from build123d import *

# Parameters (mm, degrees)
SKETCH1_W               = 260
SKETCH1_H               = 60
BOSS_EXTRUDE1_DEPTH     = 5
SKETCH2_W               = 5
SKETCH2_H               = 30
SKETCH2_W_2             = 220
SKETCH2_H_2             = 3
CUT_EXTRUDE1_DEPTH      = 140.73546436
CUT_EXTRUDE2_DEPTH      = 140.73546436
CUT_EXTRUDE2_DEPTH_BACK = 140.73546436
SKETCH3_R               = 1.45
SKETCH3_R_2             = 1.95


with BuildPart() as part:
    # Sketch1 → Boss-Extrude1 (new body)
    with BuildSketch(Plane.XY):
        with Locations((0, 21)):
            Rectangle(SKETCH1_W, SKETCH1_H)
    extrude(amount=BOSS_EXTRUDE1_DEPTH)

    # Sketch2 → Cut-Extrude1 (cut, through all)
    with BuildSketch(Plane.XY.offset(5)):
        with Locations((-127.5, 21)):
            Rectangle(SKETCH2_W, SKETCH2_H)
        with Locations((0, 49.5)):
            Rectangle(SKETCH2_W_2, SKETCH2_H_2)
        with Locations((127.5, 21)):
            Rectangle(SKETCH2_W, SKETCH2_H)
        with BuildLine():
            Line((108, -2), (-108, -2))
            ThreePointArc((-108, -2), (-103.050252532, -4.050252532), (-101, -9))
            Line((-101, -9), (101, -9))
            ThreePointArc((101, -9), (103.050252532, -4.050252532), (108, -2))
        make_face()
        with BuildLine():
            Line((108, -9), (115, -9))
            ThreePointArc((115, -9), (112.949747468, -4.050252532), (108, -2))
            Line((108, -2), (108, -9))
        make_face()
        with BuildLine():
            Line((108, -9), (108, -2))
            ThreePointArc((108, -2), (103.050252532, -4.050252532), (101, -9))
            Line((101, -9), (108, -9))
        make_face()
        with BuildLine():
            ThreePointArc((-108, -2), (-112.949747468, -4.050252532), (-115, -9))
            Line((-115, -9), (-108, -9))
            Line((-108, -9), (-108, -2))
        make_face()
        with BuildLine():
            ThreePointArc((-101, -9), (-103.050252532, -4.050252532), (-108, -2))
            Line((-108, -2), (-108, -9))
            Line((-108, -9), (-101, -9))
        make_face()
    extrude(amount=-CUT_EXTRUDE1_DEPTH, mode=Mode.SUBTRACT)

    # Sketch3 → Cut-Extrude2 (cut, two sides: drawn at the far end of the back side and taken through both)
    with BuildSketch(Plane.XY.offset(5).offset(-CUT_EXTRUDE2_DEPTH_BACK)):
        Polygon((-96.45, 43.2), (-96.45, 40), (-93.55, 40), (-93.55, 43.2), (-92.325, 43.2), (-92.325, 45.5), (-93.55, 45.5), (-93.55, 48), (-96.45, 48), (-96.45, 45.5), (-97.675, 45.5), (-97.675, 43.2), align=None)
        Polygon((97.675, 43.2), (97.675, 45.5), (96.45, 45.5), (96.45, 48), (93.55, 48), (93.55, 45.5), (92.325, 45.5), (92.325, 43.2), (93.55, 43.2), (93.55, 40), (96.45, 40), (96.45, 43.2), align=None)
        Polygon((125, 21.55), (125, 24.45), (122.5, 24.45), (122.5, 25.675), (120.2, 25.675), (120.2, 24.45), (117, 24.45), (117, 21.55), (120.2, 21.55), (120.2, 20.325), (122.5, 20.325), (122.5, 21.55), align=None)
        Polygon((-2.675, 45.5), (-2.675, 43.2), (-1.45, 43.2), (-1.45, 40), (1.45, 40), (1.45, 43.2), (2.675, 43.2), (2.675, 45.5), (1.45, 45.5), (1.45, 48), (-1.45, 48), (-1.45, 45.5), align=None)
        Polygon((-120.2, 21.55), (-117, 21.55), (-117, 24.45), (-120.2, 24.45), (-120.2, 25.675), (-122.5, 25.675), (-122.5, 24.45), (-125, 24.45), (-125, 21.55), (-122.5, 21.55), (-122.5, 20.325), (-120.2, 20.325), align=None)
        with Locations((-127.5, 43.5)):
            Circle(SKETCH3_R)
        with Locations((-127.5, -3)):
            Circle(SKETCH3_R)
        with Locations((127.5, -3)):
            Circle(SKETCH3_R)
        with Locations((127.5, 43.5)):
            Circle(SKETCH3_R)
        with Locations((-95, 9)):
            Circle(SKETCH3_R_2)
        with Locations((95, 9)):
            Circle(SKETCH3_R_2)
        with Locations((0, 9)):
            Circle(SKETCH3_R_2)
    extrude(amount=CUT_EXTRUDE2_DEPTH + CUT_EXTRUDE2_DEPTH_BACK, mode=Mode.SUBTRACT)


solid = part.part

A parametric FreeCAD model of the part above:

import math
import FreeCAD as App
import Part
import Sketcher

V = App.Vector
Q = App.Units.Quantity


def add_polygon(sketch, points):
    """Adds a closed chain of lines whose ends are joined by coincident constraints."""
    first, n = sketch.GeometryCount, len(points)
    for a, b in zip(points, points[1:] + points[:1]):
        sketch.addGeometry(Part.LineSegment(App.Vector(*a, 0), App.Vector(*b, 0)), False)
    for i in range(n):
        sketch.addConstraint(Sketcher.Constraint("Coincident", first + i, 2, first + (i + 1) % n, 1))

doc = App.newDocument("Part")
params = doc.addObject("Spreadsheet::Sheet", "Params")
for row, (alias, value) in enumerate([
    ("sketch1_width", "260 mm"),
    ("sketch1_height", "60 mm"),
    ("pad1_length", "5 mm"),
    ("sketch2_radius", "7 mm"),
    ("sketch2_width", "5 mm"),
    ("sketch2_width2", "220 mm"),
    ("sketch2_width3", "216 mm"),
    ("sketch2_height", "30 mm"),
    ("sketch3_diameter", "2.9 mm"),
    ("sketch3_diameter2", "3.9 mm"),
    ("sketch3_width", "2.9 mm"),
    ("sketch3_width2", "2.5 mm"),
    ("sketch3_width3", "2.3 mm"),
], start=1):
    params.set(f"A{row}", alias)
    params.set(f"B{row}", "=" + value)
    params.setAlias(f"B{row}", alias)

body = doc.addObject("PartDesign::Body", "Body")

# Sketch on XY plane
sketch1 = body.newObject("Sketcher::SketchObject", "Sketch")
sketch1.AttachmentSupport = (doc.getObject("XY_Plane"), [""])
sketch1.MapMode = "FlatFace"
add_polygon(sketch1, [(-130, 51), (-130, -9), (130, -9), (130, 51)])  # lines 0-3
sketch1.addConstraint([
    Sketcher.Constraint("Vertical", 0),
    Sketcher.Constraint("Horizontal", 1),
    Sketcher.Constraint("Vertical", 2),
    Sketcher.Constraint("Horizontal", 3),
    Sketcher.Constraint("DistanceX", 1, 1, 1, 2, Q("260 mm")),
    Sketcher.Constraint("DistanceY", 0, 2, 0, 1, Q("60 mm")),
    Sketcher.Constraint("DistanceX", 0, 2, -1, 1, Q("130 mm")),
    Sketcher.Constraint("DistanceY", 0, 2, -1, 1, Q("9 mm")),
])
sketch1.setExpression("Constraints[8]", "Params.sketch1_width")
sketch1.setExpression("Constraints[9]", "Params.sketch1_height")
pad1 = body.newObject("PartDesign::Pad", "Pad")
pad1.Profile = sketch1
pad1.setExpression("Length", "Params.pad1_length")

# Sketch on XY plane
sketch2 = body.newObject("Sketcher::SketchObject", "Sketch001")
sketch2.AttachmentSupport = (doc.getObject("XY_Plane"), [""])
sketch2.MapMode = "FlatFace"
sketch2.AttachmentOffset = App.Placement(V(0, 0, 5), App.Rotation())
add_polygon(sketch2, [(-130, 36), (-130, 6), (-125, 6), (-125, 36)])  # lines 0-3
add_polygon(sketch2, [(-110, 51), (-110, 48), (110, 48), (110, 51)])  # lines 4-7
add_polygon(sketch2, [(125, 36), (125, 6), (130, 6), (130, 36)])  # lines 8-11
sketch2.addGeometry(Part.ArcOfCircle(Part.Circle(V(108, -9, 0), V(0, 0, 1), 7), math.radians(0), math.radians(90)), False)  # 12
sketch2.addGeometry(Part.LineSegment(V(108, -2, 0), V(-108, -2, 0)), False)  # 13
sketch2.addGeometry(Part.ArcOfCircle(Part.Circle(V(-108, -9, 0), V(0, 0, 1), 7), math.radians(90), math.radians(180)), False)  # 14
sketch2.addGeometry(Part.LineSegment(V(-115, -9, 0), V(115, -9, 0)), False)  # 15
sketch2.addConstraint([
    Sketcher.Constraint("Tangent", 12, 2, 13, 1),
    Sketcher.Constraint("Tangent", 13, 2, 14, 1),
    Sketcher.Constraint("Coincident", 14, 2, 15, 1),
    Sketcher.Constraint("Coincident", 15, 2, 12, 1),
    Sketcher.Constraint("Vertical", 0),
    Sketcher.Constraint("Horizontal", 1),
    Sketcher.Constraint("Vertical", 2),
    Sketcher.Constraint("Horizontal", 3),
    Sketcher.Constraint("Vertical", 4),
    Sketcher.Constraint("Horizontal", 5),
    Sketcher.Constraint("Vertical", 6),
    Sketcher.Constraint("Horizontal", 7),
    Sketcher.Constraint("Vertical", 8),
    Sketcher.Constraint("Horizontal", 9),
    Sketcher.Constraint("Vertical", 10),
    Sketcher.Constraint("Horizontal", 11),
    Sketcher.Constraint("Horizontal", 13),
    Sketcher.Constraint("Horizontal", 15),
    Sketcher.Constraint("Equal", 12, 14),
    Sketcher.Constraint("Symmetric", 1, 2, 8, 2, -2),
    Sketcher.Constraint("Symmetric", 3, 2, 10, 2, -2),
    Sketcher.Constraint("Horizontal", 12, 3, 14, 2),
    Sketcher.Constraint("Radius", 12, Q("7 mm")),
    Sketcher.Constraint("DistanceX", 1, 1, 1, 2, Q("5 mm")),
    Sketcher.Constraint("DistanceX", 5, 1, 5, 2, Q("220 mm")),
    Sketcher.Constraint("DistanceX", 13, 2, 13, 1, Q("216 mm")),
    Sketcher.Constraint("DistanceY", 0, 2, 0, 1, Q("30 mm")),
    Sketcher.Constraint("DistanceY", 4, 2, 4, 1, Q("3 mm")),
    Sketcher.Constraint("DistanceX", -1, 1, 12, 3, Q("108 mm")),
    Sketcher.Constraint("DistanceY", 12, 3, -1, 1, Q("9 mm")),
    Sketcher.Constraint("DistanceX", 0, 2, -1, 1, Q("130 mm")),
    Sketcher.Constraint("DistanceY", -1, 1, 0, 2, Q("6 mm")),
    Sketcher.Constraint("DistanceX", 4, 2, -1, 1, Q("110 mm")),
    Sketcher.Constraint("DistanceY", -1, 1, 4, 2, Q("48 mm")),
])
sketch2.setExpression("Constraints[34]", "Params.sketch2_radius")
sketch2.setExpression("Constraints[35]", "Params.sketch2_width")
sketch2.setExpression("Constraints[36]", "Params.sketch2_width2")
sketch2.setExpression("Constraints[37]", "Params.sketch2_width3")
sketch2.setExpression("Constraints[38]", "Params.sketch2_height")
pocket1 = body.newObject("PartDesign::Pocket", "Pocket")
pocket1.Profile = sketch2
pocket1.Type = "ThroughAll"

# Sketch on XY plane
sketch3 = body.newObject("Sketcher::SketchObject", "Sketch002")
sketch3.AttachmentSupport = (doc.getObject("XY_Plane"), [""])
sketch3.MapMode = "FlatFace"
sketch3.AttachmentOffset = App.Placement(V(0, 0, 5), App.Rotation())
add_polygon(sketch3, [(-96.45, 43.2), (-96.45, 40), (-93.55, 40), (-93.55, 43.2), (-92.325, 43.2), (-92.325, 45.5), (-93.55, 45.5), (-93.55, 48), (-96.45, 48), (-96.45, 45.5), (-97.675, 45.5), (-97.675, 43.2)])  # lines 0-11
add_polygon(sketch3, [(97.675, 43.2), (97.675, 45.5), (96.45, 45.5), (96.45, 48), (93.55, 48), (93.55, 45.5), (92.325, 45.5), (92.325, 43.2), (93.55, 43.2), (93.55, 40), (96.45, 40), (96.45, 43.2)])  # lines 12-23
add_polygon(sketch3, [(125, 21.55), (125, 24.45), (122.5, 24.45), (122.5, 25.675), (120.2, 25.675), (120.2, 24.45), (117, 24.45), (117, 21.55), (120.2, 21.55), (120.2, 20.325), (122.5, 20.325), (122.5, 21.55)])  # lines 24-35
add_polygon(sketch3, [(-2.675, 45.5), (-2.675, 43.2), (-1.45, 43.2), (-1.45, 40), (1.45, 40), (1.45, 43.2), (2.675, 43.2), (2.675, 45.5), (1.45, 45.5), (1.45, 48), (-1.45, 48), (-1.45, 45.5)])  # lines 36-47
add_polygon(sketch3, [(-120.2, 21.55), (-117, 21.55), (-117, 24.45), (-120.2, 24.45), (-120.2, 25.675), (-122.5, 25.675), (-122.5, 24.45), (-125, 24.45), (-125, 21.55), (-122.5, 21.55), (-122.5, 20.325), (-120.2, 20.325)])  # lines 48-59
sketch3.addGeometry(Part.Circle(V(-127.5, 43.5, 0), V(0, 0, 1), 1.45), False)  # 60
sketch3.addGeometry(Part.Circle(V(-127.5, -3, 0), V(0, 0, 1), 1.45), False)  # 61
sketch3.addGeometry(Part.Circle(V(127.5, -3, 0), V(0, 0, 1), 1.45), False)  # 62
sketch3.addGeometry(Part.Circle(V(127.5, 43.5, 0), V(0, 0, 1), 1.45), False)  # 63
sketch3.addGeometry(Part.Circle(V(-95, 9, 0), V(0, 0, 1), 1.95), False)  # 64
sketch3.addGeometry(Part.Circle(V(95, 9, 0), V(0, 0, 1), 1.95), False)  # 65
sketch3.addGeometry(Part.Circle(V(0, 9, 0), V(0, 0, 1), 1.95), False)  # 66
sketch3.addConstraint([
    Sketcher.Constraint("Vertical", 0),
    Sketcher.Constraint("Horizontal", 1),
    Sketcher.Constraint("Vertical", 2),
    Sketcher.Constraint("Horizontal", 3),
    Sketcher.Constraint("Vertical", 4),
    Sketcher.Constraint("Horizontal", 5),
    Sketcher.Constraint("Vertical", 6),
    Sketcher.Constraint("Horizontal", 7),
    Sketcher.Constraint("Vertical", 8),
    Sketcher.Constraint("Horizontal", 9),
    Sketcher.Constraint("Vertical", 10),
    Sketcher.Constraint("Horizontal", 11),
    Sketcher.Constraint("Vertical", 12),
    Sketcher.Constraint("Horizontal", 13),
    Sketcher.Constraint("Vertical", 14),
    Sketcher.Constraint("Horizontal", 15),
    Sketcher.Constraint("Vertical", 16),
    Sketcher.Constraint("Horizontal", 17),
    Sketcher.Constraint("Vertical", 18),
    Sketcher.Constraint("Horizontal", 19),
    Sketcher.Constraint("Vertical", 20),
    Sketcher.Constraint("Horizontal", 21),
    Sketcher.Constraint("Vertical", 22),
    Sketcher.Constraint("Horizontal", 23),
    Sketcher.Constraint("Vertical", 24),
    Sketcher.Constraint("Horizontal", 25),
    Sketcher.Constraint("Vertical", 26),
    Sketcher.Constraint("Horizontal", 27),
    Sketcher.Constraint("Vertical", 28),
    Sketcher.Constraint("Horizontal", 29),
    Sketcher.Constraint("Vertical", 30),
    Sketcher.Constraint("Horizontal", 31),
    Sketcher.Constraint("Vertical", 32),
    Sketcher.Constraint("Horizontal", 33),
    Sketcher.Constraint("Vertical", 34),
    Sketcher.Constraint("Horizontal", 35),
    Sketcher.Constraint("Vertical", 36),
    Sketcher.Constraint("Horizontal", 37),
    Sketcher.Constraint("Vertical", 38),
    Sketcher.Constraint("Horizontal", 39),
    Sketcher.Constraint("Vertical", 40),
    Sketcher.Constraint("Horizontal", 41),
    Sketcher.Constraint("Vertical", 42),
    Sketcher.Constraint("Horizontal", 43),
    Sketcher.Constraint("Vertical", 44),
    Sketcher.Constraint("Horizontal", 45),
    Sketcher.Constraint("Vertical", 46),
    Sketcher.Constraint("Horizontal", 47),
    Sketcher.Constraint("Horizontal", 48),
    Sketcher.Constraint("Vertical", 49),
    Sketcher.Constraint("Horizontal", 50),
    Sketcher.Constraint("Vertical", 51),
    Sketcher.Constraint("Horizontal", 52),
    Sketcher.Constraint("Vertical", 53),
    Sketcher.Constraint("Horizontal", 54),
    Sketcher.Constraint("Vertical", 55),
    Sketcher.Constraint("Horizontal", 56),
    Sketcher.Constraint("Vertical", 57),
    Sketcher.Constraint("Horizontal", 58),
    Sketcher.Constraint("Vertical", 59),
    Sketcher.Constraint("Equal", 60, 61),
    Sketcher.Constraint("Equal", 61, 62),
    Sketcher.Constraint("Equal", 62, 63),
    Sketcher.Constraint("Equal", 64, 65),
    Sketcher.Constraint("Equal", 65, 66),
    Sketcher.Constraint("Symmetric", 61, 3, 62, 3, -2),
    Sketcher.Constraint("Symmetric", 60, 3, 63, 3, -2),
    Sketcher.Constraint("Symmetric", 64, 3, 65, 3, -2),
    Sketcher.Constraint("Symmetric", 9, 2, 12, 2, -2),
    Sketcher.Constraint("Symmetric", 7, 2, 14, 2, -2),
    Sketcher.Constraint("Symmetric", 5, 2, 16, 2, -2),
    Sketcher.Constraint("Symmetric", 3, 2, 18, 2, -2),
    Sketcher.Constraint("Symmetric", 1, 2, 20, 2, -2),
    Sketcher.Constraint("Symmetric", 11, 2, 22, 2, -2),
    Sketcher.Constraint("Symmetric", 37, 2, 40, 2, -2),
    Sketcher.Constraint("Symmetric", 43, 2, 46, 2, -2),
    Sketcher.Constraint("Symmetric", 30, 2, 48, 2, -2),
    Sketcher.Constraint("Symmetric", 28, 2, 50, 2, -2),
    Sketcher.Constraint("Symmetric", 26, 2, 52, 2, -2),
    Sketcher.Constraint("Symmetric", 24, 2, 54, 2, -2),
    Sketcher.Constraint("Symmetric", 34, 2, 56, 2, -2),
    Sketcher.Constraint("Symmetric", 32, 2, 58, 2, -2),
    Sketcher.Constraint("PointOnObject", 66, 3, -2),
    Sketcher.Constraint("Horizontal", 65, 3, 66, 3),
    Sketcher.Constraint("Horizontal", 5, 2, 8, 2),
    Sketcher.Constraint("Horizontal", 3, 2, 10, 2),
    Sketcher.Constraint("Horizontal", 25, 2, 28, 2),
    Sketcher.Constraint("Horizontal", 31, 2, 34, 2),
    Sketcher.Constraint("Horizontal", 23, 2, 36, 2),
    Sketcher.Constraint("Horizontal", 21, 2, 38, 2),
    Sketcher.Constraint("Horizontal", 17, 2, 42, 2),
    Sketcher.Constraint("Horizontal", 15, 2, 44, 2),
    Sketcher.Constraint("Vertical", 60, 3, 61, 3),
    Sketcher.Constraint("Vertical", 2, 2, 5, 2),
    Sketcher.Constraint("Vertical", 0, 2, 7, 2),
    Sketcher.Constraint("Vertical", 28, 2, 31, 2),
    Sketcher.Constraint("Vertical", 26, 2, 33, 2),
    Sketcher.Constraint("Vertical", 40, 2, 43, 2),
    Sketcher.Constraint("Equal", 5, 9),
    Sketcher.Constraint("Equal", 23, 37),
    Sketcher.Constraint("Equal", 21, 39),
    Sketcher.Constraint("Equal", 37, 41),
    Sketcher.Constraint("Equal", 50, 0),
    Sketcher.Constraint("Equal", 58, 4),
    Sketcher.Constraint("Equal", 56, 6),
    Sketcher.Constraint("Equal", 45, 24),
    Sketcher.Constraint("Equal", 47, 26),
    Sketcher.Constraint("Equal", 28, 32),
    Sketcher.Constraint("Diameter", 60, Q("2.9 mm")),
    Sketcher.Constraint("Diameter", 64, Q("3.9 mm")),
    Sketcher.Constraint("DistanceX", 1, 1, 1, 2, Q("2.9 mm")),
    Sketcher.Constraint("DistanceX", 25, 2, 25, 1, Q("2.5 mm")),
    Sketcher.Constraint("DistanceX", 27, 2, 27, 1, Q("2.3 mm")),
    Sketcher.Constraint("DistanceX", 29, 2, 29, 1, Q("3.2 mm")),
    Sketcher.Constraint("DistanceY", 61, 3, -1, 1, Q("3 mm")),
    Sketcher.Constraint("DistanceX", 64, 3, -1, 1, Q("95 mm")),
    Sketcher.Constraint("DistanceY", -1, 1, 64, 3, Q("9 mm")),
    Sketcher.Constraint("DistanceY", -1, 1, 0, 2, Q("40 mm")),
    Sketcher.Constraint("DistanceX", -1, 1, 24, 2, Q("125 mm")),
    Sketcher.Constraint("DistanceX", 60, 3, -1, 1, Q("127.5 mm")),
    Sketcher.Constraint("DistanceY", -1, 1, 60, 3, Q("43.5 mm")),
    Sketcher.Constraint("DistanceX", 3, 1, 3, 2, Q("1.225 mm")),
    Sketcher.Constraint("DistanceX", 0, 2, -1, 1, Q("96.45 mm")),
    Sketcher.Constraint("DistanceY", -1, 1, 24, 2, Q("24.45 mm")),
])
sketch3.setExpression("Constraints[168]", "Params.sketch3_diameter")
sketch3.setExpression("Constraints[169]", "Params.sketch3_diameter2")
sketch3.setExpression("Constraints[170]", "Params.sketch3_width")
sketch3.setExpression("Constraints[171]", "Params.sketch3_width2")
sketch3.setExpression("Constraints[172]", "Params.sketch3_width3")
pocket2 = body.newObject("PartDesign::Pocket", "Pocket001")
pocket2.Profile = sketch3
pocket2.Type = "ThroughAll"
pocket2.Midplane = True

doc.recompute()
